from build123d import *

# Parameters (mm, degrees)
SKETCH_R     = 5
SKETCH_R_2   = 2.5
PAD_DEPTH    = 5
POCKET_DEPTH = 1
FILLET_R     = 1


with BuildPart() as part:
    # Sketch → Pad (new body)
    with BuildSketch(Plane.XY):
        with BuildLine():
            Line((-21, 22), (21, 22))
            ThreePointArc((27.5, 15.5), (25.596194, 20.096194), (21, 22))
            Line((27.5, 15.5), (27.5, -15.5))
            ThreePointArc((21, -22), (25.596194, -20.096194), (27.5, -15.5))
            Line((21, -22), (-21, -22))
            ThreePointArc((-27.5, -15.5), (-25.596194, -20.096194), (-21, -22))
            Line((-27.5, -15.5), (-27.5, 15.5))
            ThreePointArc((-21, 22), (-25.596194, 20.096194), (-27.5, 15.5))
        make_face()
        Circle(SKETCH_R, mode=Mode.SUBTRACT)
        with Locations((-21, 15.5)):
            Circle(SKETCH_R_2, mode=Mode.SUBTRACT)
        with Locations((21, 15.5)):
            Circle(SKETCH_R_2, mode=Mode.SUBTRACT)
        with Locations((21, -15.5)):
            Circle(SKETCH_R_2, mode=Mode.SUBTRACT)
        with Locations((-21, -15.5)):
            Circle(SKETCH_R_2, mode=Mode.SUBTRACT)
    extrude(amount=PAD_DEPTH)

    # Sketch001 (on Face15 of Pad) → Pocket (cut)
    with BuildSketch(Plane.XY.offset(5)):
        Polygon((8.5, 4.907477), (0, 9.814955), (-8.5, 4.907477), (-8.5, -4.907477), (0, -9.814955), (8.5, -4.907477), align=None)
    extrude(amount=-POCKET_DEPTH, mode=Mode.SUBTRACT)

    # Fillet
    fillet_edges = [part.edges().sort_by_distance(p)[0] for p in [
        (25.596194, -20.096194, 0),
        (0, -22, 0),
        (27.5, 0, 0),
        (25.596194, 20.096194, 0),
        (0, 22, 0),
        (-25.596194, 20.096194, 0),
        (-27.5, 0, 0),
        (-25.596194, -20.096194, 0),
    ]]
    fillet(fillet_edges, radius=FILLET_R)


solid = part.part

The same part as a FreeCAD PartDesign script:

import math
import FreeCAD as App
import Part
import Sketcher
Q = App.Units.Quantity


def edges_at(feature, points):
    """Names of the edges that pass closest to the given points."""
    edges = feature.Shape.Edges
    near = lambda p: min(range(len(edges)), key=lambda i: edges[i].distToShape(Part.Vertex(*p))[0])
    return sorted({f"Edge{near(p) + 1}" for p in points})

doc = App.newDocument("Part")
params = doc.addObject("Spreadsheet::Sheet", "Params")
for row, (alias, value) in enumerate([
    ("sketch1_diameter", "5 mm"),
    ("sketch1_diameter2", "10 mm"),
    ("sketch1_radius", "6.5 mm"),
    ("sketch1_width", "42 mm"),
    ("sketch1_height", "31 mm"),
    ("pad1_length", "5 mm"),
    ("pocket1_length", "1 mm"),
    ("fillet_radius", "1 mm"),
], start=1):
    params.set(f"A{row}", alias)
    params.set(f"B{row}", "=" + value)
    params.setAlias(f"B{row}", alias)

body = doc.addObject("PartDesign::Body", "Body")

# Sketch on XY plane
sketch1 = doc.addObject("Sketcher::SketchObject", "Sketch")
body.addObject(sketch1)
sketch1.AttachmentSupport = (doc.XY_Plane, [""])
sketch1.MapMode = "FlatFace"
sketch1.addGeometry([
    Part.LineSegment(App.Vector(21, 22, 0), App.Vector(-21, 22, 0)),  # 0
    Part.ArcOfCircle(Part.Circle(App.Vector(-21, 15.5, 0), App.Vector(0, 0, 1), 6.5), math.radians(90), math.radians(180)),  # 1
    Part.LineSegment(App.Vector(-27.5, 15.5, 0), App.Vector(-27.5, -15.5, 0)),  # 2
    Part.ArcOfCircle(Part.Circle(App.Vector(-21, -15.5, 0), App.Vector(0, 0, 1), 6.5), math.radians(-180), math.radians(-90)),  # 3
    Part.LineSegment(App.Vector(-21, -22, 0), App.Vector(21, -22, 0)),  # 4
    Part.ArcOfCircle(Part.Circle(App.Vector(21, -15.5, 0), App.Vector(0, 0, 1), 6.5), math.radians(-90), math.radians(0)),  # 5
    Part.LineSegment(App.Vector(27.5, -15.5, 0), App.Vector(27.5, 15.5, 0)),  # 6
    Part.ArcOfCircle(Part.Circle(App.Vector(21, 15.5, 0), App.Vector(0, 0, 1), 6.5), math.radians(0), math.radians(90)),  # 7
    Part.Circle(App.Vector(21, -15.5, 0), App.Vector(0, 0, 1), 2.5),  # 8
    Part.Circle(App.Vector(-21, -15.5, 0), App.Vector(0, 0, 1), 2.5),  # 9
    Part.Circle(App.Vector(21, 15.5, 0), App.Vector(0, 0, 1), 2.5),  # 10
    Part.Circle(App.Vector(0, 0, 0), App.Vector(0, 0, 1), 5),  # 11
    Part.Circle(App.Vector(-21, 15.5, 0), App.Vector(0, 0, 1), 2.5),  # 12
], False)
sketch1.addConstraint([
    Sketcher.Constraint("Tangent", 0, 2, 1, 1),
    Sketcher.Constraint("Tangent", 1, 2, 2, 1),
    Sketcher.Constraint("Tangent", 2, 2, 3, 1),
    Sketcher.Constraint("Tangent", 3, 2, 4, 1),
    Sketcher.Constraint("Tangent", 4, 2, 5, 1),
    Sketcher.Constraint("Tangent", 5, 2, 6, 1),
    Sketcher.Constraint("Tangent", 6, 2, 7, 1),
    Sketcher.Constraint("Tangent", 7, 2, 0, 1),
    Sketcher.Constraint("Horizontal", 0),
    Sketcher.Constraint("Vertical", 2),
    Sketcher.Constraint("Horizontal", 4),
    Sketcher.Constraint("Vertical", 6),
    Sketcher.Constraint("Coincident", 11, 3, -1, 1),
    Sketcher.Constraint("Coincident", 8, 3, 5, 3),
    Sketcher.Constraint("Coincident", 9, 3, 3, 3),
    Sketcher.Constraint("Coincident", 10, 3, 7, 3),
    Sketcher.Constraint("Coincident", 12, 3, 1, 3),
    Sketcher.Constraint("Equal", 1, 3),
    Sketcher.Constraint("Equal", 3, 5),
    Sketcher.Constraint("Equal", 5, 7),
    Sketcher.Constraint("Equal", 8, 9),
    Sketcher.Constraint("Equal", 9, 10),
    Sketcher.Constraint("Equal", 10, 12),
    Sketcher.Constraint("Symmetric", 1, 3, 5, 3, -1, 1),
    Sketcher.Constraint("Diameter", 8, Q("5 mm")),
    Sketcher.Constraint("Diameter", 11, Q("10 mm")),
    Sketcher.Constraint("Radius", 1, Q("6.5 mm")),
    Sketcher.Constraint("DistanceX", 0, 2, 0, 1, Q("42 mm")),
    Sketcher.Constraint("DistanceY", 2, 2, 2, 1, Q("31 mm")),
])
sketch1.setExpression("Constraints[24]", "Params.sketch1_diameter")
sketch1.setExpression("Constraints[25]", "Params.sketch1_diameter2")
sketch1.setExpression("Constraints[26]", "Params.sketch1_radius")
sketch1.setExpression("Constraints[27]", "Params.sketch1_width")
sketch1.setExpression("Constraints[28]", "Params.sketch1_height")
pad1 = doc.addObject("PartDesign::Pad", "Pad")
body.addObject(pad1)
pad1.Profile = sketch1
pad1.setExpression("Length", "Params.pad1_length")

# Sketch on XY plane
sketch2 = doc.addObject("Sketcher::SketchObject", "Sketch001")
body.addObject(sketch2)
sketch2.AttachmentSupport = (doc.XY_Plane, [""])
sketch2.MapMode = "FlatFace"
sketch2.AttachmentOffset = App.Placement(App.Vector(0, 0, 5), App.Rotation())
sketch2.addGeometry([
    Part.LineSegment(App.Vector(8, 5, 0), App.Vector(0, 10, 0)),  # 0
    Part.LineSegment(App.Vector(0, 10, 0), App.Vector(-8, 5, 0)),  # 1
    Part.LineSegment(App.Vector(-8, 5, 0), App.Vector(-8, -5, 0)),  # 2
    Part.LineSegment(App.Vector(-8, -5, 0), App.Vector(0, -10, 0)),  # 3
    Part.LineSegment(App.Vector(0, -10, 0), App.Vector(8, -5, 0)),  # 4
    Part.LineSegment(App.Vector(8, -5, 0), App.Vector(8, 5, 0)),  # 5
], False)
sketch2.addConstraint([
    Sketcher.Constraint("Coincident", 0, 2, 1, 1),
    Sketcher.Constraint("Coincident", 1, 2, 2, 1),
    Sketcher.Constraint("Coincident", 2, 2, 3, 1),
    Sketcher.Constraint("Coincident", 3, 2, 4, 1),
    Sketcher.Constraint("Coincident", 4, 2, 5, 1),
    Sketcher.Constraint("Coincident", 5, 2, 0, 1),
    Sketcher.Constraint("Vertical", 2),
    Sketcher.Constraint("Vertical", 5),
    Sketcher.Constraint("Symmetric", 0, 2, 3, 2, -1, 1),
    Sketcher.Constraint("Symmetric", 1, 2, 4, 2, -1, 1),
    Sketcher.Constraint("PointOnObject", 0, 2, -2),
    Sketcher.Constraint("Parallel", 0, 3),
    Sketcher.Constraint("Horizontal", 2, 2, 4, 2),
    Sketcher.Constraint("Angle", 0, Q("149.999996 deg")),
    Sketcher.Constraint("DistanceX", 2, 2, 4, 2, Q("17 mm")),
    Sketcher.Constraint("DistanceY", 2, 2, 2, 1, Q("9.814954 mm")),
])
pocket1 = doc.addObject("PartDesign::Pocket", "Pocket")
body.addObject(pocket1)
pocket1.Profile = sketch2
pocket1.setExpression("Length", "Params.pocket1_length")
doc.recompute()

fillet = doc.addObject("PartDesign::Fillet", "Fillet")
body.addObject(fillet)
fillet.Base = (pocket1, edges_at(pocket1, [
    (25.596, -20.096, 0),
    (0, -22, 0),
    (27.5, 0, 0),
    (25.596, 20.096, 0),
    (0, 22, 0),
    (-25.596, 20.096, 0),
    (-27.5, 0, 0),
    (-25.596, -20.096, 0),
]))
fillet.setExpression("Radius", "Params.fillet_radius")

doc.recompute()
